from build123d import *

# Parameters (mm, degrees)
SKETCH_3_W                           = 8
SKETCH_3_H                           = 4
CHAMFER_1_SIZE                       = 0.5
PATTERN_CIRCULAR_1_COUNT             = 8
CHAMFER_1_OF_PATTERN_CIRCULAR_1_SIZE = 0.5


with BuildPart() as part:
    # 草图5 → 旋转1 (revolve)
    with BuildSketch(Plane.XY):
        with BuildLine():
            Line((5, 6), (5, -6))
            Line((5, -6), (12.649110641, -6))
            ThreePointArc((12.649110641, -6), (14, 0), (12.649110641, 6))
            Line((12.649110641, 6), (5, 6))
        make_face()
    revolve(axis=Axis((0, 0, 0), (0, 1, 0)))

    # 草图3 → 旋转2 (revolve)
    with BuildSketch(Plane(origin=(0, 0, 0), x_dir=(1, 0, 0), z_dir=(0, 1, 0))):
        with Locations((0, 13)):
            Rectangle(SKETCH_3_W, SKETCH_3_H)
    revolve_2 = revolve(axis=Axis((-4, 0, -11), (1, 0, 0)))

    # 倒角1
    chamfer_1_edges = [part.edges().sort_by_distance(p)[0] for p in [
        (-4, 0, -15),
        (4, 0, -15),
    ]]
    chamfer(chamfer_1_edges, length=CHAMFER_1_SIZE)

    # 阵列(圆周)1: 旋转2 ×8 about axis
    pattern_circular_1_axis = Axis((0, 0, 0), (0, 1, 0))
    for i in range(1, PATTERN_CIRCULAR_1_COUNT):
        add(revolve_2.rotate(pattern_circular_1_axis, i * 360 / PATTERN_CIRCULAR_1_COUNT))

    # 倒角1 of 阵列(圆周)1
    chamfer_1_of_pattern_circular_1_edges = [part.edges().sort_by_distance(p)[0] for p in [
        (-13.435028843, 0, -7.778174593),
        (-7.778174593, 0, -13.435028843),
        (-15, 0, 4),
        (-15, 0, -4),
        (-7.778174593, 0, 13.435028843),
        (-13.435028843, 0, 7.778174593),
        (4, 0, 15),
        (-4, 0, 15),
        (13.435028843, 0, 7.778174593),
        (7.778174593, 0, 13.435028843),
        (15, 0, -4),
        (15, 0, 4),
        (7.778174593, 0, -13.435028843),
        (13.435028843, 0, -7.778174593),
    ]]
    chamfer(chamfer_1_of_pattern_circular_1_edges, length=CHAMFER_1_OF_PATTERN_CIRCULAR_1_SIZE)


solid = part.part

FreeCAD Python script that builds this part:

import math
import FreeCAD as App
import Part
import Sketcher

V = App.Vector
Q = App.Units.Quantity


def edges_at(feature, points):
    """Names of the edges that pass closest to the given points."""
    edges = feature.Shape.Edges
    near = lambda p: min(range(len(edges)), key=lambda i: edges[i].distToShape(Part.Vertex(*p))[0])
    return sorted({f"Edge{near(p) + 1}" for p in points})

doc = App.newDocument("Part")
body = doc.addObject("PartDesign::Body", "Body")

# Sketch on XY plane
sketch1 = doc.addObject("Sketcher::SketchObject", "Sketch")
body.addObject(sketch1)
sketch1.AttachmentSupport = (doc.XY_Plane, [""])
sketch1.MapMode = "FlatFace"
sketch1.addGeometry(Part.LineSegment(V(5, 6, 0), V(5, -6, 0)), False)
sketch1.addGeometry(Part.LineSegment(V(5, -6, 0), V(13, -6, 0)), False)
sketch1.addGeometry(Part.ArcOfCircle(Part.Circle(V(0, 0, 0), V(0, 0, 1), 14), math.radians(-25), math.radians(25)), False)
sketch1.addGeometry(Part.LineSegment(V(13, 6, 0), V(5, 6, 0)), False)
sketch1.addConstraint(Sketcher.Constraint("Coincident", 0, 2, 1, 1))
sketch1.addConstraint(Sketcher.Constraint("Coincident", 1, 2, 2, 1))
sketch1.addConstraint(Sketcher.Constraint("Coincident", 2, 2, 3, 1))
sketch1.addConstraint(Sketcher.Constraint("Coincident", 3, 2, 0, 1))
sketch1.addConstraint(Sketcher.Constraint("Vertical", 0))
sketch1.addConstraint(Sketcher.Constraint("Horizontal", 1))
sketch1.addConstraint(Sketcher.Constraint("Horizontal", 3))
sketch1.addConstraint(Sketcher.Constraint("Coincident", 2, 3, -1, 1))
sketch1.addConstraint(Sketcher.Constraint("Vertical", 1, 2, 2, 2))
sketch1.addConstraint(Sketcher.Constraint("Radius", 2, Q("14 mm")))
sketch1.addConstraint(Sketcher.Constraint("DistanceY", 0, 2, 0, 1, Q("12 mm")))
sketch1.addConstraint(Sketcher.Constraint("DistanceX", -1, 1, 0, 2, Q("5 mm")))
revolution = doc.addObject("PartDesign::Revolution", "Revolution")
body.addObject(revolution)
revolution.Profile = sketch1
revolution.ReferenceAxis = (sketch1, ["V_Axis"])
revolution.Angle = 360

# Sketch on XZ plane
sketch2 = doc.addObject("Sketcher::SketchObject", "Sketch001")
body.addObject(sketch2)
sketch2.AttachmentSupport = (doc.XZ_Plane, [""])
sketch2.MapMode = "FlatFace"
sketch2.addGeometry(Part.LineSegment(V(-4, -15, 0), V(-4, -11, 0)), False)
sketch2.addGeometry(Part.LineSegment(V(-4, -11, 0), V(4, -11, 0)), False)
sketch2.addGeometry(Part.LineSegment(V(4, -11, 0), V(4, -15, 0)), False)
sketch2.addGeometry(Part.LineSegment(V(4, -15, 0), V(-4, -15, 0)), False)
sketch2.addGeometry(Part.LineSegment(V(-4, -11, 0), V(4, -11, 0)), True)  # axis
sketch2.addConstraint(Sketcher.Constraint("Coincident", 0, 2, 1, 1))
sketch2.addConstraint(Sketcher.Constraint("Coincident", 1, 2, 2, 1))
sketch2.addConstraint(Sketcher.Constraint("Coincident", 2, 2, 3, 1))
sketch2.addConstraint(Sketcher.Constraint("Coincident", 3, 2, 0, 1))
sketch2.addConstraint(Sketcher.Constraint("Vertical", 0))
sketch2.addConstraint(Sketcher.Constraint("Horizontal", 1))
sketch2.addConstraint(Sketcher.Constraint("Vertical", 2))
sketch2.addConstraint(Sketcher.Constraint("Horizontal", 3))
sketch2.addConstraint(Sketcher.Constraint("Horizontal", 4))
sketch2.addConstraint(Sketcher.Constraint("Coincident", 4, 1, 0, 2))
sketch2.addConstraint(Sketcher.Constraint("Vertical", 2, 2, 4, 2))
sketch2.addConstraint(Sketcher.Constraint("DistanceX", 1, 1, 1, 2, Q("8 mm")))
sketch2.addConstraint(Sketcher.Constraint("DistanceY", 0, 1, 0, 2, Q("4 mm")))
sketch2.addConstraint(Sketcher.Constraint("DistanceX", 0, 2, -1, 1, Q("4 mm")))
sketch2.addConstraint(Sketcher.Constraint("DistanceY", 0, 2, -1, 1, Q("11 mm")))
revolution2 = doc.addObject("PartDesign::Revolution", "Revolution001")
body.addObject(revolution2)
revolution2.Profile = sketch2
revolution2.ReferenceAxis = (sketch2, ["Axis0"])
revolution2.Angle = 360
doc.recompute()

chamfer = doc.addObject("PartDesign::Chamfer", "Chamfer")
body.addObject(chamfer)
chamfer.Base = (revolution2, edges_at(revolution2, [(-4, 0, -15), (4, 0, -15)]))
chamfer.Size = 0.5
doc.recompute()

polarpattern = doc.addObject("PartDesign::PolarPattern", "PolarPattern")
body.addObject(polarpattern)
polarpattern.Originals = [revolution2]
polarpattern.Axis = (doc.Y_Axis, [""])
polarpattern.Angle = 360
polarpattern.Occurrences = 8
body.Tip = polarpattern
doc.recompute()

chamfer2 = doc.addObject("PartDesign::Chamfer", "Chamfer001")
body.addObject(chamfer2)
chamfer2.Base = (polarpattern, edges_at(polarpattern, [
    (-13.435, 0, -7.778),
    (-7.778, 0, -13.435),
    (-15, 0, 4),
    (-15, 0, -4),
    (-7.778, 0, 13.435),
    (-13.435, 0, 7.778),
    (4, 0, 15),
    (-4, 0, 15),
    (13.435, 0, 7.778),
    (7.778, 0, 13.435),
    (15, 0, -4),
    (15, 0, 4),
    (7.778, 0, -13.435),
    (13.435, 0, -7.778),
]))
chamfer2.Size = 0.5

doc.recompute()
